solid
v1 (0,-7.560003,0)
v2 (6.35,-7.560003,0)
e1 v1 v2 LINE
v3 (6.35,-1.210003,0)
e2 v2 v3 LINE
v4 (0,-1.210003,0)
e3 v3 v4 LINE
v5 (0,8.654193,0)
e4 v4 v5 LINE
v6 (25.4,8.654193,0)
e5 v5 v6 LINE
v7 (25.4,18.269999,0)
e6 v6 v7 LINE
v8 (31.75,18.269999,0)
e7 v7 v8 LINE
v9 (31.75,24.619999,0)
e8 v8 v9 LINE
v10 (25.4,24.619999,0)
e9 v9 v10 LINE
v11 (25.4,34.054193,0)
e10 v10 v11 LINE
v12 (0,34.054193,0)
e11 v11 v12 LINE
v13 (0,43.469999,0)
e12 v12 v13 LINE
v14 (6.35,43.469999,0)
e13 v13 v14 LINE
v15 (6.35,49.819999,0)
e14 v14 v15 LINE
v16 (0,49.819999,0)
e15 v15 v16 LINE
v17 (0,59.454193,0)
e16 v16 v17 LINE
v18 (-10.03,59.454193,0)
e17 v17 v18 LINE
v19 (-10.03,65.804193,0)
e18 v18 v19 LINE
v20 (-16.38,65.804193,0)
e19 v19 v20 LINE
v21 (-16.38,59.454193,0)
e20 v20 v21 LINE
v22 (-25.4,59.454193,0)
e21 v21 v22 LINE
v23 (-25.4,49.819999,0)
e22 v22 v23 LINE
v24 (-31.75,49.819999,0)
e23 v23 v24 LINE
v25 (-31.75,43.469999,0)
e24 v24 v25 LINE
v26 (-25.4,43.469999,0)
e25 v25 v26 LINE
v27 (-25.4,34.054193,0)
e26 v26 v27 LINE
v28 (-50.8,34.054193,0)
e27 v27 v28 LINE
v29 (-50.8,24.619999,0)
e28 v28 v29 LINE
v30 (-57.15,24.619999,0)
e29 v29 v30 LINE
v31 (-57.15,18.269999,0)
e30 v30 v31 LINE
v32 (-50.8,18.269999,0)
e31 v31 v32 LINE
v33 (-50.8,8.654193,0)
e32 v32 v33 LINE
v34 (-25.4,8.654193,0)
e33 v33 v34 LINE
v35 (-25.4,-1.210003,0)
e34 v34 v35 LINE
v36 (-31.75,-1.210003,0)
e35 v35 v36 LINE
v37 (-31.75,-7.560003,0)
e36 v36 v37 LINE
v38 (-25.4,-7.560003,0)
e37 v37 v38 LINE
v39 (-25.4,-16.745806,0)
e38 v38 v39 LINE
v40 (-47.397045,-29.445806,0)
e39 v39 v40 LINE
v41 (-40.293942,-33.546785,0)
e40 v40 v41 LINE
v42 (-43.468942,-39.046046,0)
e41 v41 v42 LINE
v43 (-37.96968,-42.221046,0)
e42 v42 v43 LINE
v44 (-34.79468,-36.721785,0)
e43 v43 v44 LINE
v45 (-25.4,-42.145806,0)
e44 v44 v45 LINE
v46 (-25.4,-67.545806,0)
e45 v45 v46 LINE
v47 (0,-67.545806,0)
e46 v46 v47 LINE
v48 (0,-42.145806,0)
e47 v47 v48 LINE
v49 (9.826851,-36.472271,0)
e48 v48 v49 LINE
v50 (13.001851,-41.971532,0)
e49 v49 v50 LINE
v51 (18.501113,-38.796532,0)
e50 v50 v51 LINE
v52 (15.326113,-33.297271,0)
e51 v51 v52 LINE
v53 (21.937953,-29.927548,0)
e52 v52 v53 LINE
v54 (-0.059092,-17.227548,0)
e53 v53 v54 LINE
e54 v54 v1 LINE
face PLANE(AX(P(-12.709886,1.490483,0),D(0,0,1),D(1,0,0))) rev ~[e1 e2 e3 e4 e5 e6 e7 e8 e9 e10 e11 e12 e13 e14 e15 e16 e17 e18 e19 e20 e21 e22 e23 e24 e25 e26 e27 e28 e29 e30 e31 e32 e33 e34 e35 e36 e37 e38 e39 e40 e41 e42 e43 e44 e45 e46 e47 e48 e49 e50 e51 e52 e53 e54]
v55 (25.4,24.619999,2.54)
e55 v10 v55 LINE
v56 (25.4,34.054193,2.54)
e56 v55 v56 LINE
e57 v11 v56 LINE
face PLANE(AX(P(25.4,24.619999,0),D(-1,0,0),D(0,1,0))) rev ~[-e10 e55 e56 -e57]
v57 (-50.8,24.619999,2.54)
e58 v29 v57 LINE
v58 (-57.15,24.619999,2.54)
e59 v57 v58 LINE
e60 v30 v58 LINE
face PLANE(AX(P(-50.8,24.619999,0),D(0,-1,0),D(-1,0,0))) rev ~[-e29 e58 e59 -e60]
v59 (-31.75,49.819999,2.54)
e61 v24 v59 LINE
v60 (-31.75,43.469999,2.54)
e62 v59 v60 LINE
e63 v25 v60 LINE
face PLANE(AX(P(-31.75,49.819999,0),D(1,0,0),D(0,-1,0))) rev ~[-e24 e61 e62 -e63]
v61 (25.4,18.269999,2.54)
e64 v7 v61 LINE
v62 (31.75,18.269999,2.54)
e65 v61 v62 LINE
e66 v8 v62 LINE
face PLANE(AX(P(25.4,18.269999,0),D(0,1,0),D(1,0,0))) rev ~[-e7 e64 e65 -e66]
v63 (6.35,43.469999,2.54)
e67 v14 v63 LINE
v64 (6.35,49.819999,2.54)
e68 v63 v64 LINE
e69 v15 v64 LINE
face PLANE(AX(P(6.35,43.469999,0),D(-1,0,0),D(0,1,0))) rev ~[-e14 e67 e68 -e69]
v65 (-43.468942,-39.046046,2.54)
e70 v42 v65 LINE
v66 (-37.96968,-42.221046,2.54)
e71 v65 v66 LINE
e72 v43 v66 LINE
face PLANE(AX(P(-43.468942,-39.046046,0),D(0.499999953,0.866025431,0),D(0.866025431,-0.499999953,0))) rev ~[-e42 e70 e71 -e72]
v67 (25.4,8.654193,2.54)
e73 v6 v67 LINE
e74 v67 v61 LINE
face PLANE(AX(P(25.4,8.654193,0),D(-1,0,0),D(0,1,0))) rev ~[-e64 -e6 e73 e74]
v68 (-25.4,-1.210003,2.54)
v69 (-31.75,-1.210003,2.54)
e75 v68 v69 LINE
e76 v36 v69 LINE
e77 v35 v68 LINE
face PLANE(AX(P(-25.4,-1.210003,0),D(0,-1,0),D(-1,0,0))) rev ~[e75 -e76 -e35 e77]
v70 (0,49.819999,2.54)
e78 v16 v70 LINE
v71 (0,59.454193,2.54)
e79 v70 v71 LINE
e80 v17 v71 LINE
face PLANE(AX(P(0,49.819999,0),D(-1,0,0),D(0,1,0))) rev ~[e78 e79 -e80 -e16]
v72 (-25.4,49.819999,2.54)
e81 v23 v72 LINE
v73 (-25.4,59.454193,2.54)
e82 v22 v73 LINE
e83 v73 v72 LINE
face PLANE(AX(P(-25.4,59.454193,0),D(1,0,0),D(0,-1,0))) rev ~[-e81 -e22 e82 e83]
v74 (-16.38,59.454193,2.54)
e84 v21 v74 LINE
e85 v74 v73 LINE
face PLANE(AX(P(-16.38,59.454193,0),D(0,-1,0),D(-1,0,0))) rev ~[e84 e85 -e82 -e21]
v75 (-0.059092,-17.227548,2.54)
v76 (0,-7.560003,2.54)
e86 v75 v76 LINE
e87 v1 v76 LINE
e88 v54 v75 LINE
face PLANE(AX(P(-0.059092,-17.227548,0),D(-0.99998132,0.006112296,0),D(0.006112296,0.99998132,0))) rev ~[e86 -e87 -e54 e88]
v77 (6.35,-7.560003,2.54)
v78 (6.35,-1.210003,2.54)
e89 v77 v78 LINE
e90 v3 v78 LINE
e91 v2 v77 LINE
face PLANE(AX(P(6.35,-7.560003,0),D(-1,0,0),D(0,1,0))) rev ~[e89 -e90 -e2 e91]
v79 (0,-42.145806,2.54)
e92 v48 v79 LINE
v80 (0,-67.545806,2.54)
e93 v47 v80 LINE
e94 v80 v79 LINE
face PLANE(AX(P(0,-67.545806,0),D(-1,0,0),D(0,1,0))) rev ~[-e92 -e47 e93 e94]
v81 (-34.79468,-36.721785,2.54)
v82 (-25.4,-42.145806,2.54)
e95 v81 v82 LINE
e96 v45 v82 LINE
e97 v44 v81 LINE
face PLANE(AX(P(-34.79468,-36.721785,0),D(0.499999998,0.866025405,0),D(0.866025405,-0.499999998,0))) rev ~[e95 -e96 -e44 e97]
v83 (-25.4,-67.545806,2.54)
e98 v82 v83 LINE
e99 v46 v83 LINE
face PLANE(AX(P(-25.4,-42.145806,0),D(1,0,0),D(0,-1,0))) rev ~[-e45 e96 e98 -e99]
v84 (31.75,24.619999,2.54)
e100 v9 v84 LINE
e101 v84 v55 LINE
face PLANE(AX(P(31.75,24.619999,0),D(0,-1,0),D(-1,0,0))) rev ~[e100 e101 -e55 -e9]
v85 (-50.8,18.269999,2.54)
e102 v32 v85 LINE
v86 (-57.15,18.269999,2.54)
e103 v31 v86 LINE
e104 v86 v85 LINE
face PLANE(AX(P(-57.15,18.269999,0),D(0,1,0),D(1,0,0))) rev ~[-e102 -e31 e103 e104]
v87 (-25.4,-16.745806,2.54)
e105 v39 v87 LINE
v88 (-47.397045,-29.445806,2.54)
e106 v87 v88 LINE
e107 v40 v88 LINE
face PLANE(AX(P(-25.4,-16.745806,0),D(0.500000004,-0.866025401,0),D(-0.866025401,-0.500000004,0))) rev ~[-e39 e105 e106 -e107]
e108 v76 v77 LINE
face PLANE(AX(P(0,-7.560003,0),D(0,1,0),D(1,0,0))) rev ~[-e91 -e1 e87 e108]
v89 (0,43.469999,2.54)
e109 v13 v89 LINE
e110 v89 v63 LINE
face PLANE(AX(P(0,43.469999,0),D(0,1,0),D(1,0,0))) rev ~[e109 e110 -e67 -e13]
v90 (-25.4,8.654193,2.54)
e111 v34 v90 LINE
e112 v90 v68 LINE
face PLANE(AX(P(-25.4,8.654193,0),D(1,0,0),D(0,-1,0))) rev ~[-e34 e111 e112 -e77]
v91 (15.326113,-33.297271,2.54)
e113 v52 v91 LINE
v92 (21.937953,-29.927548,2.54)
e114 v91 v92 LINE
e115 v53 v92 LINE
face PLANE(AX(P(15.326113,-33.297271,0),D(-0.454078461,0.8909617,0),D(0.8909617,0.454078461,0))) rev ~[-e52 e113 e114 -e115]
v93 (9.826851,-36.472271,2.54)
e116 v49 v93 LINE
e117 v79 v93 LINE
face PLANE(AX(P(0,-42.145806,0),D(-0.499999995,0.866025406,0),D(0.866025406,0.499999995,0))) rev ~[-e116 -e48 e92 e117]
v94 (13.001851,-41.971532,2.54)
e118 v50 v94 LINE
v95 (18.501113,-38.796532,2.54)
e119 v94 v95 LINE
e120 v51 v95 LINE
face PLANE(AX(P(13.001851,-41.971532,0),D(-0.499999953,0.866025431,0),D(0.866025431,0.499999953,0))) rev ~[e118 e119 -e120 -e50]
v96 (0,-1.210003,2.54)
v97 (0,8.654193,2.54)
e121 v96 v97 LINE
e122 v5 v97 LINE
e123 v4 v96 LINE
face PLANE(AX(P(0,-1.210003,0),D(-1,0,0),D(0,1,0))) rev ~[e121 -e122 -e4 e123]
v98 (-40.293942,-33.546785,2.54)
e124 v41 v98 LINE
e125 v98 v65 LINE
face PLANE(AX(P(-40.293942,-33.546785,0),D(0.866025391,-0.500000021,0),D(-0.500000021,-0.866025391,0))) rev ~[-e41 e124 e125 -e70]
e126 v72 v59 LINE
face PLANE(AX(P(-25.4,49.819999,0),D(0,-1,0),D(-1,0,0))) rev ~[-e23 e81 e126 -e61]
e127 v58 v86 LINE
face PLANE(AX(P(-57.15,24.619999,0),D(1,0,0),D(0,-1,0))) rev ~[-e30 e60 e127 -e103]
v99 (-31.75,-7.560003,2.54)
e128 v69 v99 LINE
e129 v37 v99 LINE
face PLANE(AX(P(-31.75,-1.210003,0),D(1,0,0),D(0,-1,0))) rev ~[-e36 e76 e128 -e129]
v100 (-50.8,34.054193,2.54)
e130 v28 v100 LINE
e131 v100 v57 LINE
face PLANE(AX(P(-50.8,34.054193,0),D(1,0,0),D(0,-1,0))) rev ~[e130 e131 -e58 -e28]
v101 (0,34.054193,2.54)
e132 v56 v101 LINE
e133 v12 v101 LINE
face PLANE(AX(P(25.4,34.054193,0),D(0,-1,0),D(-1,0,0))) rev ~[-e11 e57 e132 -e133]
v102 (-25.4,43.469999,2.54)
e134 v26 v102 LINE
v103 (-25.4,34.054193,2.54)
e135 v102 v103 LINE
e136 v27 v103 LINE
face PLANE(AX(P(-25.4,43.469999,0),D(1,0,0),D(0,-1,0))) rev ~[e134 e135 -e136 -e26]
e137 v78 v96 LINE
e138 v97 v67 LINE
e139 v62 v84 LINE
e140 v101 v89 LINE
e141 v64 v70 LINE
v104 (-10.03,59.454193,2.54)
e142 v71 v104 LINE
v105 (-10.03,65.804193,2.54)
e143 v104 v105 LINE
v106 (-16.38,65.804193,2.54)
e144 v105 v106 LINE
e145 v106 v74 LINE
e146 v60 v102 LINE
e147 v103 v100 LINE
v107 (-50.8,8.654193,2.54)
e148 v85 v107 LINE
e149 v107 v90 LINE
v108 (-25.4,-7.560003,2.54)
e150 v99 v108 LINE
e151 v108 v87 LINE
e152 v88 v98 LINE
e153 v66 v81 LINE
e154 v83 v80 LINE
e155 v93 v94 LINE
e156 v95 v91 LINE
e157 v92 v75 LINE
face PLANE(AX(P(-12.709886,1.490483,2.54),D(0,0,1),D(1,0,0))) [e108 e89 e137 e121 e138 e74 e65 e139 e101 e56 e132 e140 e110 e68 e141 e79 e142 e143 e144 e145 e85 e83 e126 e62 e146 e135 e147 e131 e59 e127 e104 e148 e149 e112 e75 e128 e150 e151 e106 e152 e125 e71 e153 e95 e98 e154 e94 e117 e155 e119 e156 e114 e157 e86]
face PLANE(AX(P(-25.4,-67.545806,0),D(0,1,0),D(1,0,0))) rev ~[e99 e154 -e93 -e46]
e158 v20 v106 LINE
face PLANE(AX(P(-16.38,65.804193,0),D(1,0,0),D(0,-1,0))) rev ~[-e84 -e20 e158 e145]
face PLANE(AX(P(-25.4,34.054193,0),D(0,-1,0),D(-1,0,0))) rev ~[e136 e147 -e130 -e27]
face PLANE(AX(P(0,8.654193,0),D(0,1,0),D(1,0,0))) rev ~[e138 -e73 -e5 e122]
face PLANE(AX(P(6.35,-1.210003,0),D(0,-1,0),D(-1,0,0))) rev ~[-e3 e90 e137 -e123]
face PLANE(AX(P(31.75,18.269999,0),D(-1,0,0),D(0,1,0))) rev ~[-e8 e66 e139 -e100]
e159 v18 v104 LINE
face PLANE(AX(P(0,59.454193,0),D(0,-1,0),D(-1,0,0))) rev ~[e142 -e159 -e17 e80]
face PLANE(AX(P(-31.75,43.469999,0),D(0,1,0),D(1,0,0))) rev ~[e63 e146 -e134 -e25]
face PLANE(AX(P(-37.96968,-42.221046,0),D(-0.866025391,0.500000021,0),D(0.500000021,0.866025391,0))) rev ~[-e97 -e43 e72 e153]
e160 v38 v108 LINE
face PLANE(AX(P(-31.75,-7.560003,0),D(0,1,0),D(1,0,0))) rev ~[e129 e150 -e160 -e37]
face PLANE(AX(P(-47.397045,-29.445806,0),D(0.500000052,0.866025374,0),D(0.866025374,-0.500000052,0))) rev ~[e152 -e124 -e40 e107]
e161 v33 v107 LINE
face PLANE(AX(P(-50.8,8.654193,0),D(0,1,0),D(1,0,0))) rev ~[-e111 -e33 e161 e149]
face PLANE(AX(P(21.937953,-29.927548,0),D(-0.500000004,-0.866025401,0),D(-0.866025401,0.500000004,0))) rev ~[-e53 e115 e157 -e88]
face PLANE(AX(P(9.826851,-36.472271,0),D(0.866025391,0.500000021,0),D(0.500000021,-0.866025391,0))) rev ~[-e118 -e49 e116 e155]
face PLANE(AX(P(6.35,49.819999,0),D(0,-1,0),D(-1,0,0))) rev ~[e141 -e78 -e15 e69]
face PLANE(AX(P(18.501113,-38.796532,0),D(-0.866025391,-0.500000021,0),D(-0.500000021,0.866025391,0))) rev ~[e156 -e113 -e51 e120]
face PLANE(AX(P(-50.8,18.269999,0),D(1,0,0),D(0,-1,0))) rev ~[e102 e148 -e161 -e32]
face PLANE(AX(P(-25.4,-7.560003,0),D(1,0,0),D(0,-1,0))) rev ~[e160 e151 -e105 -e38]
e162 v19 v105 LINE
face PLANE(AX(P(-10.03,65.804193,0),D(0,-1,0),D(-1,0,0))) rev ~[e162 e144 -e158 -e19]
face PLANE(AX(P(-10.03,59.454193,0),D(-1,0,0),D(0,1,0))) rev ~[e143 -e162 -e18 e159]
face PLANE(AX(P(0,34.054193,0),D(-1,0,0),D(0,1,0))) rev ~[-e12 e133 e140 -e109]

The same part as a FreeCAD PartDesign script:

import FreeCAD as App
import Part
import Sketcher
Q = App.Units.Quantity


def add_polygon(sketch, points):
    """Adds a closed chain of lines whose ends are joined by coincident constraints."""
    first, n = sketch.GeometryCount, len(points)
    for a, b in zip(points, points[1:] + points[:1]):
        sketch.addGeometry(Part.LineSegment(App.Vector(*a, 0), App.Vector(*b, 0)), False)
    for i in range(n):
        sketch.addConstraint(Sketcher.Constraint("Coincident", first + i, 2, first + (i + 1) % n, 1))

doc = App.newDocument("Part")
body = doc.addObject("PartDesign::Body", "Body")

# Sketch on XY plane
sketch1 = doc.addObject("Sketcher::SketchObject", "Sketch")
body.addObject(sketch1)
sketch1.AttachmentSupport = (doc.XY_Plane, [""])
sketch1.MapMode = "FlatFace"
add_polygon(sketch1, [(25, 34), (0, 34), (0, 43), (6, 43), (6, 50), (0, 50), (0, 59), (-10, 59), (-10, 66), (-16, 66), (-16, 59), (-25, 59), (-25, 50), (-32, 50), (-32, 43), (-25, 43), (-25, 34), (-51, 34), (-51, 25), (-57, 25), (-57, 18), (-51, 18), (-51, 9), (-25, 9), (-25, -1), (-32, -1), (-32, -8), (-25, -8), (-25, -17), (-47, -29), (-40, -34), (-43, -39), (-38, -42), (-35, -37), (-25, -42), (-25, -68), (0, -68), (0, -42), (10, -36), (13, -42), (19, -39), (15, -33), (22, -30), (0, -17), (0, -8), (6, -8), (6, -1), (0, -1), (0, 9), (25, 9), (25, 18), (32, 18), (32, 25), (25, 25)])  # lines 0-53
sketch1.addConstraint(Sketcher.Constraint("Horizontal", 0))
sketch1.addConstraint(Sketcher.Constraint("Vertical", 1))
sketch1.addConstraint(Sketcher.Constraint("Horizontal", 2))
sketch1.addConstraint(Sketcher.Constraint("Vertical", 3))
sketch1.addConstraint(Sketcher.Constraint("Horizontal", 4))
sketch1.addConstraint(Sketcher.Constraint("Vertical", 5))
sketch1.addConstraint(Sketcher.Constraint("Horizontal", 6))
sketch1.addConstraint(Sketcher.Constraint("Vertical", 7))
sketch1.addConstraint(Sketcher.Constraint("Horizontal", 8))
sketch1.addConstraint(Sketcher.Constraint("Vertical", 9))
sketch1.addConstraint(Sketcher.Constraint("Horizontal", 10))
sketch1.addConstraint(Sketcher.Constraint("Vertical", 11))
sketch1.addConstraint(Sketcher.Constraint("Horizontal", 12))
sketch1.addConstraint(Sketcher.Constraint("Vertical", 13))
sketch1.addConstraint(Sketcher.Constraint("Horizontal", 14))
sketch1.addConstraint(Sketcher.Constraint("Vertical", 15))
sketch1.addConstraint(Sketcher.Constraint("Horizontal", 16))
sketch1.addConstraint(Sketcher.Constraint("Vertical", 17))
sketch1.addConstraint(Sketcher.Constraint("Horizontal", 18))
sketch1.addConstraint(Sketcher.Constraint("Vertical", 19))
sketch1.addConstraint(Sketcher.Constraint("Horizontal", 20))
sketch1.addConstraint(Sketcher.Constraint("Vertical", 21))
sketch1.addConstraint(Sketcher.Constraint("Horizontal", 22))
sketch1.addConstraint(Sketcher.Constraint("Vertical", 23))
sketch1.addConstraint(Sketcher.Constraint("Horizontal", 24))
sketch1.addConstraint(Sketcher.Constraint("Vertical", 25))
sketch1.addConstraint(Sketcher.Constraint("Horizontal", 26))
sketch1.addConstraint(Sketcher.Constraint("Vertical", 27))
sketch1.addConstraint(Sketcher.Constraint("Vertical", 34))
sketch1.addConstraint(Sketcher.Constraint("Horizontal", 35))
sketch1.addConstraint(Sketcher.Constraint("Vertical", 36))
sketch1.addConstraint(Sketcher.Constraint("Horizontal", 44))
sketch1.addConstraint(Sketcher.Constraint("Vertical", 45))
sketch1.addConstraint(Sketcher.Constraint("Horizontal", 46))
sketch1.addConstraint(Sketcher.Constraint("Vertical", 47))
sketch1.addConstraint(Sketcher.Constraint("Horizontal", 48))
sketch1.addConstraint(Sketcher.Constraint("Vertical", 49))
sketch1.addConstraint(Sketcher.Constraint("Horizontal", 50))
sketch1.addConstraint(Sketcher.Constraint("Vertical", 51))
sketch1.addConstraint(Sketcher.Constraint("Horizontal", 52))
sketch1.addConstraint(Sketcher.Constraint("Vertical", 53))
sketch1.addConstraint(Sketcher.Constraint("Symmetric", 22, 2, 48, 2, -2))
sketch1.addConstraint(Sketcher.Constraint("Symmetric", 15, 2, 53, 2, -2))
sketch1.addConstraint(Sketcher.Constraint("PointOnObject", 0, 2, -2))
sketch1.addConstraint(Sketcher.Constraint("PointOnObject", 4, 2, -2))
sketch1.addConstraint(Sketcher.Constraint("PointOnObject", 35, 2, -2))
sketch1.addConstraint(Sketcher.Constraint("PointOnObject", 43, 2, -2))
sketch1.addConstraint(Sketcher.Constraint("PointOnObject", 46, 2, -2))
sketch1.addConstraint(Sketcher.Constraint("Perpendicular", 29, 30))
sketch1.addConstraint(Sketcher.Constraint("Perpendicular", 30, 31))
sketch1.addConstraint(Sketcher.Constraint("Perpendicular", 31, 32))
sketch1.addConstraint(Sketcher.Constraint("Perpendicular", 32, 33))
sketch1.addConstraint(Sketcher.Constraint("Parallel", 28, 37))
sketch1.addConstraint(Sketcher.Constraint("Perpendicular", 37, 38))
sketch1.addConstraint(Sketcher.Constraint("Perpendicular", 38, 39))
sketch1.addConstraint(Sketcher.Constraint("Perpendicular", 39, 40))
sketch1.addConstraint(Sketcher.Constraint("Parallel", 33, 42))
sketch1.addConstraint(Sketcher.Constraint("Horizontal", 6, 2, 9, 2))
sketch1.addConstraint(Sketcher.Constraint("Horizontal", 4, 2, 11, 2))
sketch1.addConstraint(Sketcher.Constraint("Horizontal", 2, 2, 13, 2))
sketch1.addConstraint(Sketcher.Constraint("Horizontal", 33, 2, 36, 2))
sketch1.addConstraint(Sketcher.Constraint("Horizontal", 26, 2, 43, 2))
sketch1.addConstraint(Sketcher.Constraint("Horizontal", 24, 2, 45, 2))
sketch1.addConstraint(Sketcher.Constraint("Horizontal", 20, 2, 49, 2))
sketch1.addConstraint(Sketcher.Constraint("Horizontal", 18, 2, 51, 2))
sketch1.addConstraint(Sketcher.Constraint("Vertical", 11, 2, 14, 2))
sketch1.addConstraint(Sketcher.Constraint("Vertical", 17, 2, 20, 2))
sketch1.addConstraint(Sketcher.Constraint("Vertical", 15, 2, 22, 2))
sketch1.addConstraint(Sketcher.Constraint("Vertical", 13, 2, 24, 2))
sketch1.addConstraint(Sketcher.Constraint("Vertical", 23, 2, 26, 2))
sketch1.addConstraint(Sketcher.Constraint("Vertical", 27, 2, 33, 2))
sketch1.addConstraint(Sketcher.Constraint("Vertical", 3, 2, 44, 2))
sketch1.addConstraint(Sketcher.Constraint("Equal", 4, 8))
sketch1.addConstraint(Sketcher.Constraint("Equal", 8, 12))
sketch1.addConstraint(Sketcher.Constraint("Equal", 0, 16))
sketch1.addConstraint(Sketcher.Constraint("Equal", 14, 18))
sketch1.addConstraint(Sketcher.Constraint("Equal", 46, 50))
sketch1.addConstraint(Sketcher.Constraint("Equal", 52, 3))
sketch1.addConstraint(Sketcher.Constraint("Equal", 3, 7))
sketch1.addConstraint(Sketcher.Constraint("Equal", 13, 19))
sketch1.addConstraint(Sketcher.Constraint("Equal", 19, 25))
sketch1.addConstraint(Sketcher.Constraint("Equal", 48, 34))
sketch1.addConstraint(Sketcher.Constraint("Equal", 30, 31))
sketch1.addConstraint(Sketcher.Constraint("Equal", 31, 32))
sketch1.addConstraint(Sketcher.Constraint("Equal", 32, 38))
sketch1.addConstraint(Sketcher.Constraint("Equal", 38, 39))
sketch1.addConstraint(Sketcher.Constraint("Equal", 39, 40))
sketch1.addConstraint(Sketcher.Constraint("Equal", 28, 42))
sketch1.addConstraint(Sketcher.Constraint("DistanceX", 0, 2, 0, 1, Q("1 in")))
sketch1.addConstraint(Sketcher.Constraint("Distance", 28, Q("1 in")))
sketch1.addConstraint(Sketcher.Constraint("Angle", 28, Q("-150 deg")))
sketch1.addConstraint(Sketcher.Constraint("Angle", 29, Q("-30.000003 deg")))
sketch1.addConstraint(Sketcher.Constraint("DistanceY", 0, 2, 5, 2, Q("1 in")))
sketch1.addConstraint(Sketcher.Constraint("DistanceY", 21, 2, 16, 2, Q("1 in")))
sketch1.addConstraint(Sketcher.Constraint("DistanceY", 27, 2, 22, 2, Q("1 in")))
sketch1.addConstraint(Sketcher.Constraint("DistanceX", 2, 1, 2, 2, Q("0.25 in")))
sketch1.addConstraint(Sketcher.Constraint("Distance", 30, Q("0.25 in")))
sketch1.addConstraint(Sketcher.Constraint("DistanceX", 6, 2, 6, 1, Q("10.03 mm")))
sketch1.addConstraint(Sketcher.Constraint("DistanceY", -1, 1, 1, 2, Q("43.469999 mm")))
sketch1.addConstraint(Sketcher.Constraint("DistanceY", -1, 1, 17, 2, Q("24.619999 mm")))
sketch1.addConstraint(Sketcher.Constraint("DistanceY", 23, 2, 20, 2, Q("19.480002 mm")))
sketch1.addConstraint(Sketcher.Constraint("Distance", 37, Q("11.34707 mm")))
sketch1.addConstraint(Sketcher.Constraint("DistanceY", 1, 1, 1, 2, Q("9.415806 mm")))
sketch1.addConstraint(Sketcher.Constraint("DistanceX", 30, 2, -1, 1, Q("43.468942 mm")))
sketch1.addConstraint(Sketcher.Constraint("DistanceY", 41, 2, -1, 1, Q("29.927548 mm")))
sketch1.addConstraint(Sketcher.Constraint("DistanceX", 40, 2, 41, 2, Q("6.61184 mm")))
pad1 = doc.addObject("PartDesign::Pad", "Pad")
body.addObject(pad1)
pad1.Profile = sketch1
pad1.Length = Q("0.1 in")

doc.recompute()
